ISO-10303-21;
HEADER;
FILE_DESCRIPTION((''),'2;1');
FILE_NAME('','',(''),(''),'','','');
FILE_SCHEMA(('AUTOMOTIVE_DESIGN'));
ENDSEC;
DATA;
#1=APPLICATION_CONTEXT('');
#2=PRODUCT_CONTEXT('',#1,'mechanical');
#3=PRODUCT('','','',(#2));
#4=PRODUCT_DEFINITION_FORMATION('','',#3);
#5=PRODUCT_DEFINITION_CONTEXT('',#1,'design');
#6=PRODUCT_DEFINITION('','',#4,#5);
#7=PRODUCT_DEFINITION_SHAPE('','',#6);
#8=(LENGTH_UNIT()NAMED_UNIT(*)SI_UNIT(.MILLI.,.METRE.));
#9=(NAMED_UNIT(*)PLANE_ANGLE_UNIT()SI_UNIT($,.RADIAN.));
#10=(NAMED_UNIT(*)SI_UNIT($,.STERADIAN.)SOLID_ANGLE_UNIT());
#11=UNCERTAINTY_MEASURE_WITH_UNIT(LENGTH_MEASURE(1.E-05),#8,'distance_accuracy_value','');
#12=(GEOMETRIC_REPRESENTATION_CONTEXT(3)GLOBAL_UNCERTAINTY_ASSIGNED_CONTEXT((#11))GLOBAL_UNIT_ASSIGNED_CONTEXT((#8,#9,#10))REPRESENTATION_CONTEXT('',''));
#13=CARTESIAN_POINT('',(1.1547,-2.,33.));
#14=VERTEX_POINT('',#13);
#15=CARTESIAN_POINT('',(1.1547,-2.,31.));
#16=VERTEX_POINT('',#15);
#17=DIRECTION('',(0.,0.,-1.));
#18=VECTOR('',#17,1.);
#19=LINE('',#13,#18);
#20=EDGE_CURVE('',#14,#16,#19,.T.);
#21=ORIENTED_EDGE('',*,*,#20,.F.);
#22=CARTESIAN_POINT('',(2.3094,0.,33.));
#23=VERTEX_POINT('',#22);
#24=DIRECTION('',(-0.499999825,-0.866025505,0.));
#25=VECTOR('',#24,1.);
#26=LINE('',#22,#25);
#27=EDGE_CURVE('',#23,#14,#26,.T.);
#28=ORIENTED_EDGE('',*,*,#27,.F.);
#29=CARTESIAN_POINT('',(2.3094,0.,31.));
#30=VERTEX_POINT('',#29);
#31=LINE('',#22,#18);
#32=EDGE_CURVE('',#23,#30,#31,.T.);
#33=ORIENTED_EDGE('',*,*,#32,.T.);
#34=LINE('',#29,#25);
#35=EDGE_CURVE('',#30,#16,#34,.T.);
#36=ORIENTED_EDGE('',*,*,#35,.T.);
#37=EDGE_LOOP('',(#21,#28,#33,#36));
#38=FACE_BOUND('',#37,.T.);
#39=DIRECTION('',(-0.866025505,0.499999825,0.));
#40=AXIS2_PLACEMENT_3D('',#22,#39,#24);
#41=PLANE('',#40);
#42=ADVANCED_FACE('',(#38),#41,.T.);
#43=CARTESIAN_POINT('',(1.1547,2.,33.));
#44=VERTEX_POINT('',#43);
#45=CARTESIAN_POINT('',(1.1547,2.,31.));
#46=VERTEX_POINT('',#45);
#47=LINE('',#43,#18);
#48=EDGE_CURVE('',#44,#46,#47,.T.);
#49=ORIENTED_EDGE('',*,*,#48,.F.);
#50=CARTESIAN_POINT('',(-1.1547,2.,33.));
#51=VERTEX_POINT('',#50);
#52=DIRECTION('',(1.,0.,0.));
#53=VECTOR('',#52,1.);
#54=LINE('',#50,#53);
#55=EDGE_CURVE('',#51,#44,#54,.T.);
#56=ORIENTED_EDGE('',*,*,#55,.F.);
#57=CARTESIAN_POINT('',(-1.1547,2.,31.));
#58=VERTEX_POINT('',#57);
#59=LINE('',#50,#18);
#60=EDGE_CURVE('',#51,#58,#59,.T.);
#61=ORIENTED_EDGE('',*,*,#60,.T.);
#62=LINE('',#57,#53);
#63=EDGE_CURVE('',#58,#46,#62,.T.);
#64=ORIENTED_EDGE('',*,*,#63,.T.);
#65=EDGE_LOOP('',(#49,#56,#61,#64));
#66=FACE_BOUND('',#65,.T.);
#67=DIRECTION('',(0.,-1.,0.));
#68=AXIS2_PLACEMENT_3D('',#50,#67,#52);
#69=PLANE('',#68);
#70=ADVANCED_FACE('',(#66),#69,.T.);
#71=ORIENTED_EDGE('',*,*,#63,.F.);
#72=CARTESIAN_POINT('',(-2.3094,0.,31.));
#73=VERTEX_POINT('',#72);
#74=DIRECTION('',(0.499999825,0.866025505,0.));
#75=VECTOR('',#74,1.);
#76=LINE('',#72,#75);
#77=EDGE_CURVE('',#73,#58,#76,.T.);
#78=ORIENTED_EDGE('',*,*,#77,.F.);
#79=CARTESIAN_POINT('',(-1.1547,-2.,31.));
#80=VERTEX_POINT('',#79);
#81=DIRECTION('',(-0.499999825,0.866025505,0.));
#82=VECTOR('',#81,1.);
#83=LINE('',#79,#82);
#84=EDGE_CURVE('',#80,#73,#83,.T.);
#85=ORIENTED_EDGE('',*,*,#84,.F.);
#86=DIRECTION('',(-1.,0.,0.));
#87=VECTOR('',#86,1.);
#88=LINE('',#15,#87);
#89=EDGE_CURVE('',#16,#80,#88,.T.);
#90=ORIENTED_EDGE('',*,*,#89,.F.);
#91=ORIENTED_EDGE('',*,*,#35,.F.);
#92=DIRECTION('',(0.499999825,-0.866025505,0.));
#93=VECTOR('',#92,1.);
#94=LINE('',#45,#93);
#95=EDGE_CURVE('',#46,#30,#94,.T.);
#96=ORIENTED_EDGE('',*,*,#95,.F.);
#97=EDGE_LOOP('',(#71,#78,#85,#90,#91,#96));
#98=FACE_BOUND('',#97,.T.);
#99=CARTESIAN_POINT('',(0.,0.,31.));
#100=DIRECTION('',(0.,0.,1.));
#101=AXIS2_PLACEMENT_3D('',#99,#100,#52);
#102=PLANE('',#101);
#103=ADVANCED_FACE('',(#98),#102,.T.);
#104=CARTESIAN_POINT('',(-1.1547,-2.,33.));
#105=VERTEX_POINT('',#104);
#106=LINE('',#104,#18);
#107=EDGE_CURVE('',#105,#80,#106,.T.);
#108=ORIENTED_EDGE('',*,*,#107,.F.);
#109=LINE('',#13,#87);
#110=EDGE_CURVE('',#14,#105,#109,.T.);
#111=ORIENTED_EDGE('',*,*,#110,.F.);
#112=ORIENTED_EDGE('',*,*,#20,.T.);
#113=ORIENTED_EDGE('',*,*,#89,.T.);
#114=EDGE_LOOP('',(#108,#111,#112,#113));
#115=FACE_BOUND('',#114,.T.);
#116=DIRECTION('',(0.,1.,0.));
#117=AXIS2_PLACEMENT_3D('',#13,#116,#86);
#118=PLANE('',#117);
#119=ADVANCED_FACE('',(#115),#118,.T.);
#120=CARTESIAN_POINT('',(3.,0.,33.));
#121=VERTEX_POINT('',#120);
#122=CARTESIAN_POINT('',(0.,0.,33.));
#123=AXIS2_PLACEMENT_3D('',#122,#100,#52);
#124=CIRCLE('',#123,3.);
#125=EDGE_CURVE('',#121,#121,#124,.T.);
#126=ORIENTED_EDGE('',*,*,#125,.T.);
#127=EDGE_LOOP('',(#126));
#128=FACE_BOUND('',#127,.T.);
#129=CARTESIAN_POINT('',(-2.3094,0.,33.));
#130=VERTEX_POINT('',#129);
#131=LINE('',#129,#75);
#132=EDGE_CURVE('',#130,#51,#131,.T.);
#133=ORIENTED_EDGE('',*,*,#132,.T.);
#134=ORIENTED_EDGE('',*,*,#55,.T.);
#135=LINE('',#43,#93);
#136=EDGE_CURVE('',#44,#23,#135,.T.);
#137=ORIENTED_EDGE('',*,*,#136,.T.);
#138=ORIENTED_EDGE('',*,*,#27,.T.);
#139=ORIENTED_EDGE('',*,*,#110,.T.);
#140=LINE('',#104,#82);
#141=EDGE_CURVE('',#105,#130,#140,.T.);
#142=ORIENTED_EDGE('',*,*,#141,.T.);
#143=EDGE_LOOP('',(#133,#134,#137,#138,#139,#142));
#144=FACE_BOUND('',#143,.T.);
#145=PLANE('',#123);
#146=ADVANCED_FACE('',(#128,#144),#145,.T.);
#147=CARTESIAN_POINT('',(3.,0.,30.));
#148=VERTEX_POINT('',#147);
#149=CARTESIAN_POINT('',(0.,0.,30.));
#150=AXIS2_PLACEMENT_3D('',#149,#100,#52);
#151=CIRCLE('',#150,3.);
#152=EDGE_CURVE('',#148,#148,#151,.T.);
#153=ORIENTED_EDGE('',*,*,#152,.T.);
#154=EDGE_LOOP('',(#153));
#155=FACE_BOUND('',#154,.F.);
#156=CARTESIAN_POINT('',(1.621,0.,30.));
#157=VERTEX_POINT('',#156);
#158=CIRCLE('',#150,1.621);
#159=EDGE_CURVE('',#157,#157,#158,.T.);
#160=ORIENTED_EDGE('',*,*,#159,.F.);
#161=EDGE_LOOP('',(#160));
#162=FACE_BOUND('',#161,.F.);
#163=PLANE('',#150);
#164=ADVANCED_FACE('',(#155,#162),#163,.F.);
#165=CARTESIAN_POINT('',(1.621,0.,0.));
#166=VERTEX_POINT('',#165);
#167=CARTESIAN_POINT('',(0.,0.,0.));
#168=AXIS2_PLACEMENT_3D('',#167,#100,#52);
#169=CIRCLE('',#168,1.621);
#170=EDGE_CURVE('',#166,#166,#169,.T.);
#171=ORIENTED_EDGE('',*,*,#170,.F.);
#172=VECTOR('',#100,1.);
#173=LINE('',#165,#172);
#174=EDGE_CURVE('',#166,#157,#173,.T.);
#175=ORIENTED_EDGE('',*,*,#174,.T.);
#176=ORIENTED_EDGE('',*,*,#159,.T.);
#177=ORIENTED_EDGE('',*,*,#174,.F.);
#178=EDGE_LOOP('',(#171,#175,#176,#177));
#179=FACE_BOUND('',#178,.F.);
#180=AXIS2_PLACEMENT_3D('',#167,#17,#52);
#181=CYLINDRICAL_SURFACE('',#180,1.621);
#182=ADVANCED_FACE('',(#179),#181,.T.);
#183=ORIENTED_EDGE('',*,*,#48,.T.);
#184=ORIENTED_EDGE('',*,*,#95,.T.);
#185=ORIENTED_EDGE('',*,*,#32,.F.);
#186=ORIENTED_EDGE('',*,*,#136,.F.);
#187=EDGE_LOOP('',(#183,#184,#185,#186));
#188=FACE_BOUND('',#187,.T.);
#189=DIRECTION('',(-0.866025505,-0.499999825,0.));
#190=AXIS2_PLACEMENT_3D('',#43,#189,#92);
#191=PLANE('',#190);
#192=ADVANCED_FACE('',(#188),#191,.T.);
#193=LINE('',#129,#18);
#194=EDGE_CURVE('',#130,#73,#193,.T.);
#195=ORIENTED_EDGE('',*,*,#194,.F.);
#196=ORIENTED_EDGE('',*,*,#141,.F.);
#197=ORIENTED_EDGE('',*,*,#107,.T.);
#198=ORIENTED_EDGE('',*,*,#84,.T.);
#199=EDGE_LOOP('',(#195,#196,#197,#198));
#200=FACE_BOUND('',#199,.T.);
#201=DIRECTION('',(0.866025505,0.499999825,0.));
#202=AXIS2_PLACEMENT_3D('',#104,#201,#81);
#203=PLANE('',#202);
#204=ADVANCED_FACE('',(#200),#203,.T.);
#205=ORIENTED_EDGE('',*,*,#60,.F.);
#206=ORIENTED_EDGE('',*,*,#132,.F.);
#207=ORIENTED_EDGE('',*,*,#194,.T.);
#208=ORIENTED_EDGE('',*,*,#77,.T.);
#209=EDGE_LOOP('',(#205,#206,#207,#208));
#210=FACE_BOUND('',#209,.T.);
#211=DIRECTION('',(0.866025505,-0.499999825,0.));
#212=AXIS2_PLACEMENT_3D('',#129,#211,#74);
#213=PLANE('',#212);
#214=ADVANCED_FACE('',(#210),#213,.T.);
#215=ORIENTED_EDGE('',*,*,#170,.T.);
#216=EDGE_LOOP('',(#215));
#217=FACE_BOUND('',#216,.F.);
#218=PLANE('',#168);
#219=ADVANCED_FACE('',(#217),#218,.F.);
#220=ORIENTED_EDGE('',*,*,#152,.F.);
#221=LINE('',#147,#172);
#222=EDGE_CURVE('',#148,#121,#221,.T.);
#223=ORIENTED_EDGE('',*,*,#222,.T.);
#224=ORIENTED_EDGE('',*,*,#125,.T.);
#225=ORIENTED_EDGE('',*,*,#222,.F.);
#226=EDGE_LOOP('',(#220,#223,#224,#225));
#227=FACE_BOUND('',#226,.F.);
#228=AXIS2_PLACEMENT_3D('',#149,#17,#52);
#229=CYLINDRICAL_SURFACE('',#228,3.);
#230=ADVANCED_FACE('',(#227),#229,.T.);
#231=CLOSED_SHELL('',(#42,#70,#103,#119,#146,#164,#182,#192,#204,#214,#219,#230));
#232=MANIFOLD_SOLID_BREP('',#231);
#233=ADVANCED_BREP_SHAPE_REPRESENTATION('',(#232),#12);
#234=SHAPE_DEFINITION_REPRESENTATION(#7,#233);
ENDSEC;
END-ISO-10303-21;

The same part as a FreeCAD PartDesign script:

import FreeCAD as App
import Part
import Sketcher
from FreeCAD import Vector
Q = App.Units.Quantity

doc = App.newDocument("Part")
body = doc.addObject("PartDesign::Body", "Body")

# Sketch on XY plane
sketch1 = body.newObject("Sketcher::SketchObject", "Sketch")
sketch1.AttachmentSupport = (doc.getObject("XY_Plane"), [""])
sketch1.MapMode = "FlatFace"
sketch1.addGeometry(Part.Circle(Vector(0, 0, 0), Vector(0, 0, 1), 1.6), False)
sketch1.addConstraint(Sketcher.Constraint("Coincident", 0, 3, -1, 1))
sketch1.addConstraint(Sketcher.Constraint("Diameter", 0, Q("3.242 mm")))
pad1 = body.newObject("PartDesign::Pad", "Pad")
pad1.Profile = sketch1
pad1.Length = 30

# Sketch on XY plane
sketch2 = body.newObject("Sketcher::SketchObject", "Sketch001")
sketch2.AttachmentSupport = (doc.getObject("XY_Plane"), [""])
sketch2.MapMode = "FlatFace"
sketch2.AttachmentOffset = App.Placement(Vector(0, 0, 30), App.Rotation())
sketch2.addGeometry(Part.Circle(Vector(0, 0, 0), Vector(0, 0, 1), 3), False)
sketch2.addConstraint(Sketcher.Constraint("Coincident", 0, 3, -1, 1))
sketch2.addConstraint(Sketcher.Constraint("Diameter", 0, Q("6 mm")))
pad2 = body.newObject("PartDesign::Pad", "Pad001")
pad2.Profile = sketch2
pad2.Length = 3

# Sketch on XY plane
sketch3 = body.newObject("Sketcher::SketchObject", "Sketch002")
sketch3.AttachmentSupport = (doc.getObject("XY_Plane"), [""])
sketch3.MapMode = "FlatFace"
sketch3.AttachmentOffset = App.Placement(Vector(0, 0, 33), App.Rotation())
sketch3.addGeometry(Part.LineSegment(Vector(2.3, 0, 0), Vector(1.2, 2, 0)), False)
sketch3.addGeometry(Part.LineSegment(Vector(1.2, 2, 0), Vector(-1.2, 2, 0)), False)
sketch3.addGeometry(Part.LineSegment(Vector(-1.2, 2, 0), Vector(-2.3, 0, 0)), False)
sketch3.addGeometry(Part.LineSegment(Vector(-2.3, 0, 0), Vector(-1.2, -2, 0)), False)
sketch3.addGeometry(Part.LineSegment(Vector(-1.2, -2, 0), Vector(1.2, -2, 0)), False)
sketch3.addGeometry(Part.LineSegment(Vector(1.2, -2, 0), Vector(2.3, 0, 0)), False)
sketch3.addConstraint(Sketcher.Constraint("Coincident", 0, 2, 1, 1))
sketch3.addConstraint(Sketcher.Constraint("Coincident", 1, 2, 2, 1))
sketch3.addConstraint(Sketcher.Constraint("Coincident", 2, 2, 3, 1))
sketch3.addConstraint(Sketcher.Constraint("Coincident", 3, 2, 4, 1))
sketch3.addConstraint(Sketcher.Constraint("Coincident", 4, 2, 5, 1))
sketch3.addConstraint(Sketcher.Constraint("Coincident", 5, 2, 0, 1))
sketch3.addConstraint(Sketcher.Constraint("Horizontal", 1))
sketch3.addConstraint(Sketcher.Constraint("Horizontal", 4))
sketch3.addConstraint(Sketcher.Constraint("Symmetric", 0, 2, 3, 2, -1, 1))
sketch3.addConstraint(Sketcher.Constraint("Symmetric", 2, 2, 5, 2, -1, 1))
sketch3.addConstraint(Sketcher.Constraint("PointOnObject", 2, 2, -1))
sketch3.addConstraint(Sketcher.Constraint("Parallel", 2, 5))
sketch3.addConstraint(Sketcher.Constraint("Vertical", 1, 2, 3, 2))
sketch3.addConstraint(Sketcher.Constraint("DistanceY", 3, 2, 1, 2, Q("4 mm")))
sketch3.addConstraint(Sketcher.Constraint("Angle", 0, Q("120 deg")))
sketch3.addConstraint(Sketcher.Constraint("DistanceX", 2, 2, 0, 2, Q("3.464 mm")))
pocket1 = body.newObject("PartDesign::Pocket", "Pocket")
pocket1.Profile = sketch3
pocket1.Length = 2

doc.recompute()
